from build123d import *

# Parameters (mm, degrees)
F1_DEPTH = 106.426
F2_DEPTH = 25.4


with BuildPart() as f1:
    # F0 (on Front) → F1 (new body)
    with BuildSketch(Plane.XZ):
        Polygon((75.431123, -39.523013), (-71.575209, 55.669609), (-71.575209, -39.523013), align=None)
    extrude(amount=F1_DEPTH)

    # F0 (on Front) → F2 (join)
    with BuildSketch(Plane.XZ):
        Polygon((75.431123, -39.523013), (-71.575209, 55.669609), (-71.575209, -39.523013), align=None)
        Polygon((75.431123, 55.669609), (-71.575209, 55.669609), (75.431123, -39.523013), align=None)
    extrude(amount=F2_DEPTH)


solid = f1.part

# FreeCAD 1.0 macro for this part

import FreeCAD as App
import Part
import Sketcher

V = App.Vector
Q = App.Units.Quantity

doc = App.newDocument("Part")
body = doc.addObject("PartDesign::Body", "Body")

# Sketch on XZ plane
sketch1 = doc.addObject("Sketcher::SketchObject", "Sketch")
body.addObject(sketch1)
sketch1.AttachmentSupport = (doc.XZ_Plane, [""])
sketch1.MapMode = "FlatFace"
sketch1.addGeometry([
    Part.LineSegment(V(75.431123, -39.523013, 0), V(-71.575209, 55.669609, 0)),
    Part.LineSegment(V(-71.575209, 55.669609, 0), V(-71.575209, -39.523013, 0)),
    Part.LineSegment(V(-71.575209, -39.523013, 0), V(75.431123, -39.523013, 0)),
], False)
sketch1.addConstraint([
    Sketcher.Constraint("Coincident", 0, 2, 1, 1),
    Sketcher.Constraint("Coincident", 1, 2, 2, 1),
    Sketcher.Constraint("Coincident", 2, 2, 0, 1),
    Sketcher.Constraint("Vertical", 1),
    Sketcher.Constraint("Horizontal", 2),
    Sketcher.Constraint("DistanceX", 2, 1, 2, 2, 147.006332),
    Sketcher.Constraint("DistanceY", 1, 2, 1, 1, 95.192622),
    Sketcher.Constraint("DistanceX", 0, 2, -1, 1, 71.575209),
    Sketcher.Constraint("DistanceY", -1, 1, 0, 2, 55.669609),
])
pad1 = doc.addObject("PartDesign::Pad", "Pad")
body.addObject(pad1)
pad1.Profile = sketch1
pad1.Length = Q("4.19 in")

# Sketch on XZ plane
sketch2 = doc.addObject("Sketcher::SketchObject", "Sketch001")
body.addObject(sketch2)
sketch2.AttachmentSupport = (doc.XZ_Plane, [""])
sketch2.MapMode = "FlatFace"
sketch2.addGeometry([
    Part.LineSegment(V(-71.575209, 55.669609, 0), V(-71.575209, -39.523013, 0)),
    Part.LineSegment(V(-71.575209, -39.523013, 0), V(75.431123, -39.523013, 0)),
    Part.LineSegment(V(75.431123, -39.523013, 0), V(75.431123, 55.669609, 0)),
    Part.LineSegment(V(75.431123, 55.669609, 0), V(-71.575209, 55.669609, 0)),
], False)
sketch2.addConstraint([
    Sketcher.Constraint("Coincident", 0, 2, 1, 1),
    Sketcher.Constraint("Coincident", 1, 2, 2, 1),
    Sketcher.Constraint("Coincident", 2, 2, 3, 1),
    Sketcher.Constraint("Coincident", 3, 2, 0, 1),
    Sketcher.Constraint("Vertical", 0),
    Sketcher.Constraint("Horizontal", 1),
    Sketcher.Constraint("Vertical", 2),
    Sketcher.Constraint("Horizontal", 3),
    Sketcher.Constraint("DistanceX", 1, 1, 1, 2, 147.006332),
    Sketcher.Constraint("DistanceY", 0, 2, 0, 1, 95.192622),
    Sketcher.Constraint("DistanceX", 0, 2, -1, 1, 71.575209),
    Sketcher.Constraint("DistanceY", -1, 1, 2, 2, 55.669609),
])
pad2 = doc.addObject("PartDesign::Pad", "Pad001")
body.addObject(pad2)
pad2.Profile = sketch2
pad2.Length = Q("1 in")

doc.recompute()
